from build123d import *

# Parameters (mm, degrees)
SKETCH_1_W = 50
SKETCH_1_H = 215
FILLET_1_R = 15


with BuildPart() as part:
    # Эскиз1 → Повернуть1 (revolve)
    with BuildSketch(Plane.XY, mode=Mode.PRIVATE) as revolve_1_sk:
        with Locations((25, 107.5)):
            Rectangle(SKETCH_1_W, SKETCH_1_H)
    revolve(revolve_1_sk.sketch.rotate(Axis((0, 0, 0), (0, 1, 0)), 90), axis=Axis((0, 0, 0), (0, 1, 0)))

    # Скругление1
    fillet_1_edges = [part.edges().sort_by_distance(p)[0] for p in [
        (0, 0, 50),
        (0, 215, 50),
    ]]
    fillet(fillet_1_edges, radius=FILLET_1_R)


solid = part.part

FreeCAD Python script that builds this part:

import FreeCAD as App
import Part
import Sketcher

V = App.Vector
Q = App.Units.Quantity


def edges_at(feature, points):
    """Names of the edges that pass closest to the given points."""
    edges = feature.Shape.Edges
    near = lambda p: min(range(len(edges)), key=lambda i: edges[i].distToShape(Part.Vertex(*p))[0])
    return sorted({f"Edge{near(p) + 1}" for p in points})

doc = App.newDocument("Part")
body = doc.addObject("PartDesign::Body", "Body")

# Sketch on XY plane
sketch1 = doc.addObject("Sketcher::SketchObject", "Sketch")
body.addObject(sketch1)
sketch1.AttachmentSupport = (doc.XY_Plane, [""])
sketch1.MapMode = "FlatFace"
sketch1.addGeometry(Part.LineSegment(V(0, 215, 0), V(0, 0, 0)), False)
sketch1.addGeometry(Part.LineSegment(V(0, 0, 0), V(50, 0, 0)), False)
sketch1.addGeometry(Part.LineSegment(V(50, 0, 0), V(50, 215, 0)), False)
sketch1.addGeometry(Part.LineSegment(V(50, 215, 0), V(0, 215, 0)), False)
sketch1.addConstraint(Sketcher.Constraint("Coincident", 0, 2, 1, 1))
sketch1.addConstraint(Sketcher.Constraint("Coincident", 1, 2, 2, 1))
sketch1.addConstraint(Sketcher.Constraint("Coincident", 2, 2, 3, 1))
sketch1.addConstraint(Sketcher.Constraint("Coincident", 3, 2, 0, 1))
sketch1.addConstraint(Sketcher.Constraint("Vertical", 0))
sketch1.addConstraint(Sketcher.Constraint("Horizontal", 1))
sketch1.addConstraint(Sketcher.Constraint("Vertical", 2))
sketch1.addConstraint(Sketcher.Constraint("Horizontal", 3))
sketch1.addConstraint(Sketcher.Constraint("Coincident", 0, 2, -1, 1))
sketch1.addConstraint(Sketcher.Constraint("DistanceX", 1, 1, 1, 2, Q("50 mm")))
sketch1.addConstraint(Sketcher.Constraint("DistanceY", 0, 2, 0, 1, Q("215 mm")))
revolution = doc.addObject("PartDesign::Revolution", "Revolution")
body.addObject(revolution)
revolution.Profile = sketch1
revolution.ReferenceAxis = (sketch1, ["V_Axis"])
revolution.Angle = 360
doc.recompute()

fillet = doc.addObject("PartDesign::Fillet", "Fillet")
body.addObject(fillet)
fillet.Base = (revolution, edges_at(revolution, [(0, 0, 50), (0, 215, 50)]))
fillet.Radius = 15

doc.recompute()
